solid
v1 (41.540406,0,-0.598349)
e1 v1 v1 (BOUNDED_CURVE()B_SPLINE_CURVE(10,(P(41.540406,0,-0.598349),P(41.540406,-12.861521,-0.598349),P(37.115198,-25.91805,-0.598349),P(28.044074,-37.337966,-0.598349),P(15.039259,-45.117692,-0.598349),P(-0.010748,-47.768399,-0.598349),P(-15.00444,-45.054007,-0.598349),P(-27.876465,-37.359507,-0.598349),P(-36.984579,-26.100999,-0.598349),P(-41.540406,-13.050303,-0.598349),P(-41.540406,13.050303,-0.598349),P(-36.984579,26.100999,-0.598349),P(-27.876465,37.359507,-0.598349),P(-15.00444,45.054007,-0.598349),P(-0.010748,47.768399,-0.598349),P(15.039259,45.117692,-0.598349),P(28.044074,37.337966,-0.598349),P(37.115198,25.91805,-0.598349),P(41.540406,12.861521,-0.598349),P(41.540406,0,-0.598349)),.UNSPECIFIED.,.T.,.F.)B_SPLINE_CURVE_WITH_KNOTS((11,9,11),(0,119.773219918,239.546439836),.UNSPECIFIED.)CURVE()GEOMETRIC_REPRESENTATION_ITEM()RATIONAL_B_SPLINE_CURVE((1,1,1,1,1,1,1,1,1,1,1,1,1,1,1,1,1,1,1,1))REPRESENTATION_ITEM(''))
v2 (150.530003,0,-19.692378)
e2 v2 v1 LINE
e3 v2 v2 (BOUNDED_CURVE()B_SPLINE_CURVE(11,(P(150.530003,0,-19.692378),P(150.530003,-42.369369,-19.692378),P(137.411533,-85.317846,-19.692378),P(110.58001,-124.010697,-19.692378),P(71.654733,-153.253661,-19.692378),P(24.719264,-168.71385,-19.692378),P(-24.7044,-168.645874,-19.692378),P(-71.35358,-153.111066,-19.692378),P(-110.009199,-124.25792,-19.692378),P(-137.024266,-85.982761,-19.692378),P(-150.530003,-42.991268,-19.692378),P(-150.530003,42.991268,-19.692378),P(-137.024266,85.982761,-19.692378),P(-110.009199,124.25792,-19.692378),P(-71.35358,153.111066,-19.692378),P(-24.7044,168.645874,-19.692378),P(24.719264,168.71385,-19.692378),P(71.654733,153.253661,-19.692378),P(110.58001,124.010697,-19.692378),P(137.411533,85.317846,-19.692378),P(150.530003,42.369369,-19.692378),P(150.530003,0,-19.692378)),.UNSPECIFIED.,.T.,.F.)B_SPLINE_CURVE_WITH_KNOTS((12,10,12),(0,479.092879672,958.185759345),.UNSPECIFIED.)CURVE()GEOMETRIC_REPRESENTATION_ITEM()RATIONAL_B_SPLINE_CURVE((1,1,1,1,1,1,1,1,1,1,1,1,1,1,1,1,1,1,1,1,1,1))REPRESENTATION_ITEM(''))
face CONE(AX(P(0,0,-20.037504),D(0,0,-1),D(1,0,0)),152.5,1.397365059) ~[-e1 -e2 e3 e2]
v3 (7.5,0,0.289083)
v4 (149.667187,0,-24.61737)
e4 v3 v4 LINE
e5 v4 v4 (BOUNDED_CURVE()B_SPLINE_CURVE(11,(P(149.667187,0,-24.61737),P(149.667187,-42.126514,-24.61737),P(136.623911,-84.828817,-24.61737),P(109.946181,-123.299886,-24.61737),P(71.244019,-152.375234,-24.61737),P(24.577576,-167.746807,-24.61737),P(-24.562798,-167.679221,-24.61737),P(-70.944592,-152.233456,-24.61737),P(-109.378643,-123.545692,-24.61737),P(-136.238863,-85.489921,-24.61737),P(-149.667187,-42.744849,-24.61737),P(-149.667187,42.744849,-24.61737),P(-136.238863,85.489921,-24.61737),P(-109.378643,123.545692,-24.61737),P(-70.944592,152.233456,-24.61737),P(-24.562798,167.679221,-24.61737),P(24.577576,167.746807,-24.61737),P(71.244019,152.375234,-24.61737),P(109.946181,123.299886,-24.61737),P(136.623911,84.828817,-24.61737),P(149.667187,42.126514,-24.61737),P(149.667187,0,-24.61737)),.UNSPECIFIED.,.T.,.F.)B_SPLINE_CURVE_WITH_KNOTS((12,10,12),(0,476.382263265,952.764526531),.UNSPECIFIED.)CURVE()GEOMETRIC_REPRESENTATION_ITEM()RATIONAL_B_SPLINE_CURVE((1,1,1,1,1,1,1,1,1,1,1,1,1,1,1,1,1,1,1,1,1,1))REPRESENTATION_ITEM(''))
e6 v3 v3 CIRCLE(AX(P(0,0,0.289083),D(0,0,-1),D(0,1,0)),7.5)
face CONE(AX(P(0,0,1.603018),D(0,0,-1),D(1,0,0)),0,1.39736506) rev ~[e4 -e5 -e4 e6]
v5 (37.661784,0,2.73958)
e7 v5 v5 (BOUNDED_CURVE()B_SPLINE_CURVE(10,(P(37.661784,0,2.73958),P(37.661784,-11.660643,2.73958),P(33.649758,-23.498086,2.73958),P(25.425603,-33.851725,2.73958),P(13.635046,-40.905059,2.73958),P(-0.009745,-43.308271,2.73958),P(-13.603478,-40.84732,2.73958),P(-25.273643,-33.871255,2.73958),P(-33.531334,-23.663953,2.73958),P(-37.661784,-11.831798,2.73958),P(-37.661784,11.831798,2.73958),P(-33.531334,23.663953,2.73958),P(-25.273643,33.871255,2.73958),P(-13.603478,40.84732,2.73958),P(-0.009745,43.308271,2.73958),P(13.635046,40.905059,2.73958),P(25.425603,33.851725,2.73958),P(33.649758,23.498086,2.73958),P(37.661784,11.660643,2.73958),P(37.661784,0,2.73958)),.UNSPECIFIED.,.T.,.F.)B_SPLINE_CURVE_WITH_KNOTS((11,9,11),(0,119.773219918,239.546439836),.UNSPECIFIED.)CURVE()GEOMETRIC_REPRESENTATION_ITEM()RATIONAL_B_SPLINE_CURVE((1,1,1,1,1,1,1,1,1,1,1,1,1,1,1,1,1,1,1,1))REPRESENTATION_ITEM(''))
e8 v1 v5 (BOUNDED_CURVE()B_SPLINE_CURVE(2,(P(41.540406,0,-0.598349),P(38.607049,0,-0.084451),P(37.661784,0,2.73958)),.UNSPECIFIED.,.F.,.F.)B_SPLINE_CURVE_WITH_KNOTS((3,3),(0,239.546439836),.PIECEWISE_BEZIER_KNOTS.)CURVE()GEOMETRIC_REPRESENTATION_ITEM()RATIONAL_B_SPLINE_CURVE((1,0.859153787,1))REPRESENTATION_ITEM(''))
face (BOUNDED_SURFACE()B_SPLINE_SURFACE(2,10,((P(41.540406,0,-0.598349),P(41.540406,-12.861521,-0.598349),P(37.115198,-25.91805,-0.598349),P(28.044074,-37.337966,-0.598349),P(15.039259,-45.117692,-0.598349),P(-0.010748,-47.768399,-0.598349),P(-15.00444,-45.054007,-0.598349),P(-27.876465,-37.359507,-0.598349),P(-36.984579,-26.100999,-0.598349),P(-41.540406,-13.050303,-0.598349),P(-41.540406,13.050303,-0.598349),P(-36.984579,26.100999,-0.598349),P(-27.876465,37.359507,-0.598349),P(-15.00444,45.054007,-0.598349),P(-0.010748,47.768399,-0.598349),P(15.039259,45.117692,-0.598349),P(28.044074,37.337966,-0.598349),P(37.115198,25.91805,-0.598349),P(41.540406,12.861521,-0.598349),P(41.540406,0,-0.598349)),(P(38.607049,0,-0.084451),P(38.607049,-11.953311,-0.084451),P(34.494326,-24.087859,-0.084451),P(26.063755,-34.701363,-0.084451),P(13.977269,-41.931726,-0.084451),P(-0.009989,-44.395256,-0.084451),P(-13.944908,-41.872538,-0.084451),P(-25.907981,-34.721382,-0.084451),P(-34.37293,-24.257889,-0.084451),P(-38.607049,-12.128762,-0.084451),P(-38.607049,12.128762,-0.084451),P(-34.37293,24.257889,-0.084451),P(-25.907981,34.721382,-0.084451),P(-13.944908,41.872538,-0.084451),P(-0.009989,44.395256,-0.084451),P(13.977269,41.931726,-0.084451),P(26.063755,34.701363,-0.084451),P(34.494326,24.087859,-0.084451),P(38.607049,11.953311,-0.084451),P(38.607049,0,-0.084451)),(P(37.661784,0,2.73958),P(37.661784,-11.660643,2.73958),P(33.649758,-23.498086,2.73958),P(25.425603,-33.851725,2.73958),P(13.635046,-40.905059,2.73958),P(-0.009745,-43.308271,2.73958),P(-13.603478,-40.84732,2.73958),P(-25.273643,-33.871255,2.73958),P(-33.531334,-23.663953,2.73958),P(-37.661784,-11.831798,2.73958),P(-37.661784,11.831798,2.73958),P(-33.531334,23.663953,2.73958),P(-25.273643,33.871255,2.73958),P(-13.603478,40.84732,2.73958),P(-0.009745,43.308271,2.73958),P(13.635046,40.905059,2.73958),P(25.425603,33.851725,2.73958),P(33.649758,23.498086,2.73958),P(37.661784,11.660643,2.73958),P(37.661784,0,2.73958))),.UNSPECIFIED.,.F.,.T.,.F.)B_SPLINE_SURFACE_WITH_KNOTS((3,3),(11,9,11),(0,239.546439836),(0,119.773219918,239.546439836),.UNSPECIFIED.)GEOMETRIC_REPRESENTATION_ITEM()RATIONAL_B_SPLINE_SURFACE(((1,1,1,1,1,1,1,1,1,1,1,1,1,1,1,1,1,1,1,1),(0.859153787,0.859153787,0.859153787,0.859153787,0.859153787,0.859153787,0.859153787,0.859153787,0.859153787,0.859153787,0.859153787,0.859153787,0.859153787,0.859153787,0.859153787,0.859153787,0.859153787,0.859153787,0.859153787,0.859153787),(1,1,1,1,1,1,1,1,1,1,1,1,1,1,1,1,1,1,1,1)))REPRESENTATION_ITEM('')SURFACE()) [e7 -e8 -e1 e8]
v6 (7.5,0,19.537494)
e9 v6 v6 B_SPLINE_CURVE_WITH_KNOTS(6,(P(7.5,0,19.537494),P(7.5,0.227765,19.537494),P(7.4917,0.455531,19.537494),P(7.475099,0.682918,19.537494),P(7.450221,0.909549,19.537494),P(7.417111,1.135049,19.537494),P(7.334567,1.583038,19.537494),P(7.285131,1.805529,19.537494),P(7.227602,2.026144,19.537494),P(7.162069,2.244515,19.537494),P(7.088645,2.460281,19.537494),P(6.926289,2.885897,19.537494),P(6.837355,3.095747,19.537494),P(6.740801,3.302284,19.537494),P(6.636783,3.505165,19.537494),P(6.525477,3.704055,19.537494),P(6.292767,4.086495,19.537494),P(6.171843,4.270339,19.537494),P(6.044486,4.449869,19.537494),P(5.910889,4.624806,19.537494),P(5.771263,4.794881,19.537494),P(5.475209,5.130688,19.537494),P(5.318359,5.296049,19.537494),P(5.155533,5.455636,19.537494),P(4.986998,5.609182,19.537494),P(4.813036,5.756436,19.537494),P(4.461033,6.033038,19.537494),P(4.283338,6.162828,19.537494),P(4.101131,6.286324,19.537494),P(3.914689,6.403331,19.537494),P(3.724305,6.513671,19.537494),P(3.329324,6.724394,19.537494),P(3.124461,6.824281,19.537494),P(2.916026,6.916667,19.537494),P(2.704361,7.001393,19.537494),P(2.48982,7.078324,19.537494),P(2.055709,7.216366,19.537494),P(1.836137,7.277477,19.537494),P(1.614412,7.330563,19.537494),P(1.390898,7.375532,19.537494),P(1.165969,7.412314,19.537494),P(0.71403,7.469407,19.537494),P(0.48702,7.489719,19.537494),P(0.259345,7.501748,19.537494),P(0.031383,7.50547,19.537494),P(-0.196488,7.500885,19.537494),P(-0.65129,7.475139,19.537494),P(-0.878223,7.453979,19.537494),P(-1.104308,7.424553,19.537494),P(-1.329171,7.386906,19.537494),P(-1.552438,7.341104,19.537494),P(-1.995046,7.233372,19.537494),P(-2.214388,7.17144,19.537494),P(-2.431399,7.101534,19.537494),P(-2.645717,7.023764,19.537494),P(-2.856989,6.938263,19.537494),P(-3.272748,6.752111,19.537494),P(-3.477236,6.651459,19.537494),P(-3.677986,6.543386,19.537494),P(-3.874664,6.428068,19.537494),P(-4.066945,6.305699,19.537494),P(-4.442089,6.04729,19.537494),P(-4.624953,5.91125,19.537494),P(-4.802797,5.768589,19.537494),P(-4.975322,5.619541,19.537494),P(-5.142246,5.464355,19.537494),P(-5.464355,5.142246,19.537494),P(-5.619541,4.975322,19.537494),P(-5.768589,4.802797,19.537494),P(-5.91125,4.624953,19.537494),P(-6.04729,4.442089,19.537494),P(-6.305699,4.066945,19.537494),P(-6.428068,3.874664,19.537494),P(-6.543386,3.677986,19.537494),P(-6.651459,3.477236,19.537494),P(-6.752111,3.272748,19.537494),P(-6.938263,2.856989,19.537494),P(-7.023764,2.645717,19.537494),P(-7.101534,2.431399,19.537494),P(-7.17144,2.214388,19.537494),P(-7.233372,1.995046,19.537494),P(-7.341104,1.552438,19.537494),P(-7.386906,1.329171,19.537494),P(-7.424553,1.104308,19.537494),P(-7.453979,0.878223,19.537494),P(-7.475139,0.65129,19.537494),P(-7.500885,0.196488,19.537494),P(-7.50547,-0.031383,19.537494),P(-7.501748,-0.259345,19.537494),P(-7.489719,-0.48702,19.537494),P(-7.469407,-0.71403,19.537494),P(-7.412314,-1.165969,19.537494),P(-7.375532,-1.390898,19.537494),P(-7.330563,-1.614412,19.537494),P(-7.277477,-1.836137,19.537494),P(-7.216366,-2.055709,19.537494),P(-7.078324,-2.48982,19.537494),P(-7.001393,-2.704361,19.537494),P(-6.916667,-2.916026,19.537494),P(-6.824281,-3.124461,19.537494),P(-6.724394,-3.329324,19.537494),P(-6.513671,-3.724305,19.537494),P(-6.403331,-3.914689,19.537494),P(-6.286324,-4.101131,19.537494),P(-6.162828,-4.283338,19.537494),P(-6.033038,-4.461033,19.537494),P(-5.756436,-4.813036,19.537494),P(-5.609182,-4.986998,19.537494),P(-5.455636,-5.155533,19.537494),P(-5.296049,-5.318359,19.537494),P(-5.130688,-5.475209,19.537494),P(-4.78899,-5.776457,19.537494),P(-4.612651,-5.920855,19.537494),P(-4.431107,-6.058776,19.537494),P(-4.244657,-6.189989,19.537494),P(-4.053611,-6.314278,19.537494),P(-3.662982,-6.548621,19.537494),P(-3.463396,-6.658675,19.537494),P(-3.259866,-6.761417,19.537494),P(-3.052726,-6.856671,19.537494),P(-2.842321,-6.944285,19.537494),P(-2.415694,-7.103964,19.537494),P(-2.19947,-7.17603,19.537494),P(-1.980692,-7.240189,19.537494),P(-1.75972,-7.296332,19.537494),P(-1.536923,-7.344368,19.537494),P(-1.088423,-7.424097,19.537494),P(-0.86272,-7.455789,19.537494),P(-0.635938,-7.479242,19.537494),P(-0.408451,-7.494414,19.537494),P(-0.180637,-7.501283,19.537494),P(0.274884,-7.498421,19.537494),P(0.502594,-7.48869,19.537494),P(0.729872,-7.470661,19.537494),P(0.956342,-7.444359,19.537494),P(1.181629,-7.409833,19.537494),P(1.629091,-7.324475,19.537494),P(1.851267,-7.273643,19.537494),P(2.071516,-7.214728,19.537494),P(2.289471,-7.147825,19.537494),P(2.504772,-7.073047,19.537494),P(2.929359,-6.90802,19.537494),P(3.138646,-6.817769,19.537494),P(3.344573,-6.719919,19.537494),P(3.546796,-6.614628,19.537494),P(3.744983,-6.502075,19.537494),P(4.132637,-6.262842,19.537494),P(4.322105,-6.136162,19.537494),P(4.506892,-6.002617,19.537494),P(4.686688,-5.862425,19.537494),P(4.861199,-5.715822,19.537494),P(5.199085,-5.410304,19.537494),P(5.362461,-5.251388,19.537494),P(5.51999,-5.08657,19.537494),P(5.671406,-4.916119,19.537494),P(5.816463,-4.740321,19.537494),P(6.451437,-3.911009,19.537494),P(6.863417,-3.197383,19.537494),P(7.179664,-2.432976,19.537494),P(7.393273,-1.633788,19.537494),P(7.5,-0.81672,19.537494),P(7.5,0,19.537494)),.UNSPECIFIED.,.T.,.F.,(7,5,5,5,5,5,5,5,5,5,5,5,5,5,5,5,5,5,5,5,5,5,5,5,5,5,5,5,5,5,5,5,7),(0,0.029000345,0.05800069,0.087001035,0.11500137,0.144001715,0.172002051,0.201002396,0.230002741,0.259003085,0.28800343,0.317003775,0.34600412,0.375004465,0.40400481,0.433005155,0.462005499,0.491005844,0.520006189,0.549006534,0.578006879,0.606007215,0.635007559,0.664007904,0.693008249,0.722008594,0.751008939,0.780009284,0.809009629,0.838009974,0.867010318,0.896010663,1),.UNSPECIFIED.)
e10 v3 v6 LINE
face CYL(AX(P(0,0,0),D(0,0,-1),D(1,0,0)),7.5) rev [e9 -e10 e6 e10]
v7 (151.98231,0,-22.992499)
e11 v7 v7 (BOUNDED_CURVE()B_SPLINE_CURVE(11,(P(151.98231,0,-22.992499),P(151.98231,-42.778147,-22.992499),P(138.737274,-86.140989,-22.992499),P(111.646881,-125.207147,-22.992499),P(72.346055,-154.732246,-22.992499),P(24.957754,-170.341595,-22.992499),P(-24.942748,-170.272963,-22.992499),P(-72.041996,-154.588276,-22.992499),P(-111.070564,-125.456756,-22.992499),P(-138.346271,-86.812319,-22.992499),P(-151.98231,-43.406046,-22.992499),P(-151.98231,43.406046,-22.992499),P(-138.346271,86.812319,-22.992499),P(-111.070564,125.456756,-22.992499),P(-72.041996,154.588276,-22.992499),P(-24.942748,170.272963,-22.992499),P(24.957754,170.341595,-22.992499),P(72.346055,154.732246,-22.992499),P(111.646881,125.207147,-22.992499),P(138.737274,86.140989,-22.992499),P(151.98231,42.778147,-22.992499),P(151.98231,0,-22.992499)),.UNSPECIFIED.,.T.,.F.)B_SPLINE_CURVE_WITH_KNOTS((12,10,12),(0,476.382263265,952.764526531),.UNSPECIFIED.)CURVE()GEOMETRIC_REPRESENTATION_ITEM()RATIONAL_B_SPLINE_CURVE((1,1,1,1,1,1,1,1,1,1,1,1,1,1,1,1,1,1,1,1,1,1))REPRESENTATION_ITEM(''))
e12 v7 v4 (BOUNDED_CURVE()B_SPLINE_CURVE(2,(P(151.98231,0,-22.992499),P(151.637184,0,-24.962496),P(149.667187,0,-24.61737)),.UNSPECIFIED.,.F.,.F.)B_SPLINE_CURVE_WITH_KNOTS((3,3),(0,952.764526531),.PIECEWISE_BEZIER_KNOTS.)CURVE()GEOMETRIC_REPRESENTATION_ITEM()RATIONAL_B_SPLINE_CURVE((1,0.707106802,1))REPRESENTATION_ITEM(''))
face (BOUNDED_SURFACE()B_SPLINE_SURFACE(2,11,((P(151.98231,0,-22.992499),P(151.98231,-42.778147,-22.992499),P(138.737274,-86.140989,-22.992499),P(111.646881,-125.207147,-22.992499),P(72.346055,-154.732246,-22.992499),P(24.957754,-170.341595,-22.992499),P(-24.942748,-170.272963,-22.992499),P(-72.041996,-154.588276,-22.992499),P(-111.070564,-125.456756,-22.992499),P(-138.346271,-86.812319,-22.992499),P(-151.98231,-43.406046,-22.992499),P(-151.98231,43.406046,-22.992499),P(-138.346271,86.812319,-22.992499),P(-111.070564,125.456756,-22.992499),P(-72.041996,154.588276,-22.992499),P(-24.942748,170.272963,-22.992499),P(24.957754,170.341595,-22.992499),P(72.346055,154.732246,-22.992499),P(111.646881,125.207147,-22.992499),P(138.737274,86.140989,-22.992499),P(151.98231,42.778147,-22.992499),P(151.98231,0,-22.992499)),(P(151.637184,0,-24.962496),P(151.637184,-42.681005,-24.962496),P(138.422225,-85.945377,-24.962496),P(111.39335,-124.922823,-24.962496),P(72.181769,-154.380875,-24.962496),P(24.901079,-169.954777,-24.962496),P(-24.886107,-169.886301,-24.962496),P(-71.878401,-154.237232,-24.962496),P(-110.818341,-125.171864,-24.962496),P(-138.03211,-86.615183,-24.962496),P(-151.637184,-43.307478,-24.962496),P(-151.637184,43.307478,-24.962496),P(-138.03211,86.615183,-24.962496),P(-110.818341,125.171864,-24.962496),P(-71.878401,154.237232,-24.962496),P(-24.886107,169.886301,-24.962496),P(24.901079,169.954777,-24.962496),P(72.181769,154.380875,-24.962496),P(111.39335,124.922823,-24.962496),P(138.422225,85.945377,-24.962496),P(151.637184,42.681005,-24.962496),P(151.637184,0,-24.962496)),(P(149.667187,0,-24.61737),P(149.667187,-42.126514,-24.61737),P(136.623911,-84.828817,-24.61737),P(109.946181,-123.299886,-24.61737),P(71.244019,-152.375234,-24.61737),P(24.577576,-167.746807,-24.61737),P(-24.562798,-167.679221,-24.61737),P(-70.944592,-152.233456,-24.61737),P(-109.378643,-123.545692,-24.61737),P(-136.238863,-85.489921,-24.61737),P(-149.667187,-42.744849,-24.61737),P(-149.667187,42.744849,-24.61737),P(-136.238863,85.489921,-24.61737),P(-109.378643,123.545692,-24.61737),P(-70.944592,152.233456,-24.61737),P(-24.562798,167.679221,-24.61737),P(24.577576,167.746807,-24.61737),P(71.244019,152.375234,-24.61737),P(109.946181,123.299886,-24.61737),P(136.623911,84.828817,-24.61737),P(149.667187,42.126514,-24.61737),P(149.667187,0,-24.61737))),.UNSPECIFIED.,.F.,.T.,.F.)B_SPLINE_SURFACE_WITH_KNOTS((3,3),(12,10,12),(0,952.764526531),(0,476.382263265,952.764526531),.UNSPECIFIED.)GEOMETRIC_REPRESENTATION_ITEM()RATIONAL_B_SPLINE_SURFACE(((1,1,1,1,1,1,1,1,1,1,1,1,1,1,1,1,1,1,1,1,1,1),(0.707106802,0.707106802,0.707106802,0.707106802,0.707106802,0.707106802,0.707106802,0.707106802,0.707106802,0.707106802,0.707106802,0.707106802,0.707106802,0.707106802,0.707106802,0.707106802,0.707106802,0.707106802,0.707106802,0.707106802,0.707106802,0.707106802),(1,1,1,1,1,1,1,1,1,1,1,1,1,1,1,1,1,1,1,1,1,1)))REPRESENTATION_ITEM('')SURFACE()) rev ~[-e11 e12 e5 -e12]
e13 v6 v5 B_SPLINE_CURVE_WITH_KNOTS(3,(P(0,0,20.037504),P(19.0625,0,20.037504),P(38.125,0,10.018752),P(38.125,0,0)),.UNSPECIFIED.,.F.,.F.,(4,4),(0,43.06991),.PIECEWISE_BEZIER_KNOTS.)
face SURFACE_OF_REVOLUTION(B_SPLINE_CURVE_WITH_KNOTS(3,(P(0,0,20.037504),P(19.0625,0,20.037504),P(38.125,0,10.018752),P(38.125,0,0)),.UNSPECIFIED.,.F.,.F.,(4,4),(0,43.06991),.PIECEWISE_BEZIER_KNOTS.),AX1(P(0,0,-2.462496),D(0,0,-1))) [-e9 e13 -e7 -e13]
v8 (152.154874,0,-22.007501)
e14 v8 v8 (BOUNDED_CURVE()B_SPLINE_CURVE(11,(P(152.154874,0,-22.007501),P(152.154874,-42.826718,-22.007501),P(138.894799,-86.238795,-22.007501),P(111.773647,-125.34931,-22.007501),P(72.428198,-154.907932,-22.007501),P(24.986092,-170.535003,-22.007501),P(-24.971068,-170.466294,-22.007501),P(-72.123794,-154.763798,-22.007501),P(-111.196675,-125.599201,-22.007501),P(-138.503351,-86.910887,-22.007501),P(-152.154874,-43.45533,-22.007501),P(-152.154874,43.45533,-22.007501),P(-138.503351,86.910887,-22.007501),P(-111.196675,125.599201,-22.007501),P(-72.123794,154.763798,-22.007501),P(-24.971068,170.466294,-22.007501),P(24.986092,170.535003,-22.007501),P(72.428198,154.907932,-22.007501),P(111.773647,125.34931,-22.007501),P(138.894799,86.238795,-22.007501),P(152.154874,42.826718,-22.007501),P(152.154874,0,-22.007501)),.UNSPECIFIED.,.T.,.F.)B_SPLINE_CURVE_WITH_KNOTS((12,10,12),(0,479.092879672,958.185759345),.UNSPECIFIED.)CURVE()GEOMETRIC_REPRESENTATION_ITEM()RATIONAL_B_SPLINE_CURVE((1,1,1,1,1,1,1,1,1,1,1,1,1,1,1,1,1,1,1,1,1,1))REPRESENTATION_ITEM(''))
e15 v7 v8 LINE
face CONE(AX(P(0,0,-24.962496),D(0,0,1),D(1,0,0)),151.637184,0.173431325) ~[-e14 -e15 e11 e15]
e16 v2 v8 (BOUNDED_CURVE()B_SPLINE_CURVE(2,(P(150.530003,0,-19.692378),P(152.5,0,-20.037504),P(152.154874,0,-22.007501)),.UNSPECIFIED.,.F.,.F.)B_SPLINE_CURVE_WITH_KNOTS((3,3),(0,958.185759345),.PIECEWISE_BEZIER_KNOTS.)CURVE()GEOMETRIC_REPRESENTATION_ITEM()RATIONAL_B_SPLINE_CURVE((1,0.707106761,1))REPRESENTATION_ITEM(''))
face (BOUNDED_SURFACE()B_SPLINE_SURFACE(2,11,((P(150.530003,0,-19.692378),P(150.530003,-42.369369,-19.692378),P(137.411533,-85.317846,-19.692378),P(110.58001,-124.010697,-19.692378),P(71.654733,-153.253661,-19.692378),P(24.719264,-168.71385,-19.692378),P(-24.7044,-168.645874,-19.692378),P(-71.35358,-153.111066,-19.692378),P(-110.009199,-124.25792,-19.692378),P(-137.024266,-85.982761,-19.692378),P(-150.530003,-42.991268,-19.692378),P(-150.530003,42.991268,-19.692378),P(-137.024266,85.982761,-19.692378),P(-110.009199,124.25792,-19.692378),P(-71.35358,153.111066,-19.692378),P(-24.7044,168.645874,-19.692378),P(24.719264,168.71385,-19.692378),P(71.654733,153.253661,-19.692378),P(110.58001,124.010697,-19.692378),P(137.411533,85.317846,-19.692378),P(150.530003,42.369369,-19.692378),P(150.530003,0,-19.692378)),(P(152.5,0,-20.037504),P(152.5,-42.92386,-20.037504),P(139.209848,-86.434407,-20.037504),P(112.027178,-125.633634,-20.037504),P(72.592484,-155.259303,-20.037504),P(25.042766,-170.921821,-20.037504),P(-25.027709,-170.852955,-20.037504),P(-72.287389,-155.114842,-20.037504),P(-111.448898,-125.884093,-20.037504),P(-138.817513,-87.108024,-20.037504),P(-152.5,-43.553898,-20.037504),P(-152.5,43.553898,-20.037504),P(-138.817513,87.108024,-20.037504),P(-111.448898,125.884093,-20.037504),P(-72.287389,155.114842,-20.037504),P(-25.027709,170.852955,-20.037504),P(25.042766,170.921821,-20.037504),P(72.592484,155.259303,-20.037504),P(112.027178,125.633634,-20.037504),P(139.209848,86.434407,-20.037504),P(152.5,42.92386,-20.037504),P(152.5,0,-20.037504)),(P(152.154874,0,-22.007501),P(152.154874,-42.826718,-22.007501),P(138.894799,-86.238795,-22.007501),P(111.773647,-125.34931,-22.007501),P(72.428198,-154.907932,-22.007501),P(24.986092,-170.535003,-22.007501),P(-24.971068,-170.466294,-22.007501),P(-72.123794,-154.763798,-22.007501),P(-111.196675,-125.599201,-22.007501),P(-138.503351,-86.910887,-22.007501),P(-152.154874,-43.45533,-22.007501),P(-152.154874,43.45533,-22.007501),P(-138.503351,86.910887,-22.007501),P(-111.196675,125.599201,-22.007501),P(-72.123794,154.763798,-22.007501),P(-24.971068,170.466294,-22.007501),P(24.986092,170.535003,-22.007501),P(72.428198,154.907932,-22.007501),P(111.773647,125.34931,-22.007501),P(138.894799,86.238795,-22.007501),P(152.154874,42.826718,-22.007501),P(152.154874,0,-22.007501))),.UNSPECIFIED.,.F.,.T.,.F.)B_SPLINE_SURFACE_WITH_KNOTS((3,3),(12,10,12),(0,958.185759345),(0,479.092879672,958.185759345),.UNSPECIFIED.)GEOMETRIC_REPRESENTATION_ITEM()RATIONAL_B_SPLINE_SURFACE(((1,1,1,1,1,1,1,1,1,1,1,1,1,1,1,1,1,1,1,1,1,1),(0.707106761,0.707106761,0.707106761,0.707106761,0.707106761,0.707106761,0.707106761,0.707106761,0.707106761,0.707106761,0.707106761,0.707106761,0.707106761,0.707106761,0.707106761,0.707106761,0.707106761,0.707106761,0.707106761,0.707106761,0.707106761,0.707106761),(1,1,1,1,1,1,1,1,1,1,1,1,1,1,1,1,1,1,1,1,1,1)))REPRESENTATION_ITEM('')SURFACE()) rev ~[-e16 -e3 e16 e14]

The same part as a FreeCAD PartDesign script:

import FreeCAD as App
import Part
import Sketcher
from FreeCAD import Vector
Q = App.Units.Quantity


def edges_at(feature, points):
    """Names of the edges that pass closest to the given points."""
    edges = feature.Shape.Edges
    near = lambda p: min(range(len(edges)), key=lambda i: edges[i].distToShape(Part.Vertex(*p))[0])
    return sorted({f"Edge{near(p) + 1}" for p in points})

doc = App.newDocument("Part")
body = doc.addObject("PartDesign::Body", "Body")

sketch1 = body.newObject("Sketcher::SketchObject", "Sketch")
sketch1.AttachmentSupport = (doc.getObject("XZ_Plane"), [""])
sketch1.MapMode = "FlatFace"
sketch1.addGeometry([
    Part.LineSegment(Vector(152.5, -20.037504, 0), Vector(38.125, 0, 0)),
    Part.BSplineCurve([Vector(0, 20.037504, 0), Vector(19.0625, 20.037504, 0), Vector(38.125, 10.018752, 0), Vector(38.125, 0, 0)], [4, 4], [0, 43.06991], False, 3, [1, 1, 1, 1], False),
    Part.LineSegment(Vector(0, 20.037504, 0), Vector(0, 1.603018, 0)),
    Part.LineSegment(Vector(0, 1.603018, 0), Vector(151.637184, -24.962496, 0)),
    Part.LineSegment(Vector(151.637184, -24.962496, 0), Vector(152.5, -20.037504, 0)),
], False)
sketch1.addConstraint([
    Sketcher.Constraint("Block", 1),
    Sketcher.Constraint("Coincident", 0, 2, 1, 2),
    Sketcher.Constraint("Coincident", 1, 1, 2, 1),
    Sketcher.Constraint("Coincident", 2, 2, 3, 1),
    Sketcher.Constraint("Coincident", 3, 2, 4, 1),
    Sketcher.Constraint("Coincident", 4, 2, 0, 1),
    Sketcher.Constraint("Vertical", 2),
    Sketcher.Constraint("Distance", 4, Q("5 mm")),
    Sketcher.Constraint("DistanceX", -1, 1, 4, 2, Q("152.5 mm")),
    Sketcher.Constraint("Distance", 3, Q("153.946621 mm")),
    Sketcher.Constraint("DistanceY", 2, 2, 2, 1, Q("18.434486 mm")),
    Sketcher.Constraint("DistanceY", 4, 2, 2, 2, Q("21.640522 mm")),
])
revolution = body.newObject("PartDesign::Revolution", "Revolution")
revolution.Profile = sketch1
revolution.ReferenceAxis = (sketch1, ["V_Axis"])
revolution.Angle = 360

sketch2 = body.newObject("Sketcher::SketchObject", "Sketch001")
sketch2.AttachmentSupport = (doc.getObject("XY_Plane"), [""])
sketch2.MapMode = "FlatFace"
sketch2.addGeometry(Part.Circle(Vector(0, 0, 0), Vector(0, 0, 1), 8), False)
sketch2.addConstraint([
    Sketcher.Constraint("Coincident", 0, 3, -1, 1),
    Sketcher.Constraint("Diameter", 0, Q("15 mm")),
])
pocket1 = body.newObject("PartDesign::Pocket", "Pocket")
pocket1.Profile = sketch2
pocket1.Type = "ThroughAll"
pocket1.Midplane = True
doc.recompute()

fillet = body.newObject("PartDesign::Fillet", "Fillet")
fillet.Base = (pocket1, edges_at(pocket1, [(-151.637, 0, -24.962), (-152.5, 0, -20.038)]))
fillet.Radius = 2
doc.recompute()

fillet2 = body.newObject("PartDesign::Fillet", "Fillet001")
fillet2.Base = (fillet, edges_at(fillet, [(-38.125, 0, 0)]))
fillet2.Radius = 5

doc.recompute()
